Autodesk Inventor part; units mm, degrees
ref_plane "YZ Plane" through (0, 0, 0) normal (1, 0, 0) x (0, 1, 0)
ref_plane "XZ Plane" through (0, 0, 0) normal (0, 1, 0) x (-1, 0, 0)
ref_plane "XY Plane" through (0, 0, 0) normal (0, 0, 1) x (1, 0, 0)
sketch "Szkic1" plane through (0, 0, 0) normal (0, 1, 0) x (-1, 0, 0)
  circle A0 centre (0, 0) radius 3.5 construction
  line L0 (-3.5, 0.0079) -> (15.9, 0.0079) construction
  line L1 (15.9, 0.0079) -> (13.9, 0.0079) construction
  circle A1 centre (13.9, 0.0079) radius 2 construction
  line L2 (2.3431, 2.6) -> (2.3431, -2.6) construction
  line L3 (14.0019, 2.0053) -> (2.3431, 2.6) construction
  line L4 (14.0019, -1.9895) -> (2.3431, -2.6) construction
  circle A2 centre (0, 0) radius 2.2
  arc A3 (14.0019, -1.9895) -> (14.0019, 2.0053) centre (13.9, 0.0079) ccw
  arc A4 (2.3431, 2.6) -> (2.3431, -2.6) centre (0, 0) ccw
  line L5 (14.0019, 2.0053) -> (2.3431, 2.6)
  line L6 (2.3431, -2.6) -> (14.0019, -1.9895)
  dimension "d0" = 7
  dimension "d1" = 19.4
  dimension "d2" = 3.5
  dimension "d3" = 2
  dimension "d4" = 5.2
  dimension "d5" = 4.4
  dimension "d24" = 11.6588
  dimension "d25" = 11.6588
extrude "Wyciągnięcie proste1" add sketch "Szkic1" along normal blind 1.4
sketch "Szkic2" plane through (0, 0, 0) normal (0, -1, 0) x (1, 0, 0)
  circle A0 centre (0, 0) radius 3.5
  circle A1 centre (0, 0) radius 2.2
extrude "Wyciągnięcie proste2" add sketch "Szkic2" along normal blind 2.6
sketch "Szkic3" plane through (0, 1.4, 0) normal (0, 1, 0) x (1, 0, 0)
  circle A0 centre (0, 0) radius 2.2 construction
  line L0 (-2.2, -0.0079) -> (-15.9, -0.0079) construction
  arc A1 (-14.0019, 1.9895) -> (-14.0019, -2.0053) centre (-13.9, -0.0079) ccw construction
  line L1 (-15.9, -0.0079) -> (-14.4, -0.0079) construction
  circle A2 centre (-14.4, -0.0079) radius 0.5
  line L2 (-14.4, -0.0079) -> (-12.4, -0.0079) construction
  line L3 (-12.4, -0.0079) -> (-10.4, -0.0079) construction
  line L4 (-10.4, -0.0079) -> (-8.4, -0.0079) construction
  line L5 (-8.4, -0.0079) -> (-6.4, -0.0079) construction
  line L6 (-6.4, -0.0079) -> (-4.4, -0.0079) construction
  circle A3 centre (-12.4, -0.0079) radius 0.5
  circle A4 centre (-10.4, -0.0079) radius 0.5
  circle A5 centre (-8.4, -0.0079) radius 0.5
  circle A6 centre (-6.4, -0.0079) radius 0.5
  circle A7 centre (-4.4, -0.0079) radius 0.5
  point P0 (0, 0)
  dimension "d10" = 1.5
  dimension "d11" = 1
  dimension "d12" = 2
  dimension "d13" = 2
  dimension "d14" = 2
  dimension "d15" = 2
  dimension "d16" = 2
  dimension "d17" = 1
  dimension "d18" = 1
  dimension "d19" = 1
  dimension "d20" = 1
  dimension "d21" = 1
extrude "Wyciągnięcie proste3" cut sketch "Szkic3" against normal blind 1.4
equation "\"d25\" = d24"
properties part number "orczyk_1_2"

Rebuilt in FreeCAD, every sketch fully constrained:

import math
import FreeCAD as App
import Part
import Sketcher
Q = App.Units.Quantity

doc = App.newDocument("Part")
body = doc.addObject("PartDesign::Body", "Body")

sketch1 = body.newObject("Sketcher::SketchObject", "Sketch")
sketch1.AttachmentSupport = (doc.getObject("XZ_Plane"), [""])
sketch1.MapMode = "FlatFace"
sketch1.addGeometry([
    Part.LineSegment(App.Vector(-2.3, -2.6, 0), App.Vector(-14, -2, 0)),
    Part.ArcOfCircle(Part.Circle(App.Vector(-13.9, 0, 0), App.Vector(0, 0, 1), 2), math.radians(93), math.radians(267)),
    Part.LineSegment(App.Vector(-14, 2, 0), App.Vector(-2.3, 2.6, 0)),
    Part.ArcOfCircle(Part.Circle(App.Vector(0, 0, 0), App.Vector(0, 0, 1), 3.5), math.radians(-132), math.radians(132)),
    Part.Circle(App.Vector(0, 0, 0), App.Vector(0, 0, 1), 2.2),
], False)
sketch1.addConstraint([
    Sketcher.Constraint("Coincident", 0, 2, 1, 2),
    Sketcher.Constraint("Tangent", 1, 1, 2, 1),
    Sketcher.Constraint("Coincident", 2, 2, 3, 2),
    Sketcher.Constraint("Coincident", 3, 1, 0, 1),
    Sketcher.Constraint("Coincident", 3, 3, -1, 1),
    Sketcher.Constraint("Coincident", 4, 3, -1, 1),
    Sketcher.Constraint("Vertical", 0, 2, 1, 1),
    Sketcher.Constraint("Vertical", 2, 2, 3, 1),
    Sketcher.Constraint("Radius", 1, 2.0),
    Sketcher.Constraint("Diameter", 4, 4.4),
    Sketcher.Constraint("Radius", 3, 3.5),
    Sketcher.Constraint("DistanceY", 3, 1, 2, 2, 5.2),
    Sketcher.Constraint("DistanceX", 1, 3, -1, 1, 13.9),
    Sketcher.Constraint("Angle", 2, Q("2.92 deg")),
])
pad1 = body.newObject("PartDesign::Pad", "Pad")
pad1.Profile = sketch1
pad1.Length = 1.4
pad1.Reversed = True

sketch2 = body.newObject("Sketcher::SketchObject", "Sketch001")
sketch2.AttachmentSupport = (doc.getObject("XZ_Plane"), [""])
sketch2.MapMode = "FlatFace"
sketch2.addGeometry([
    Part.Circle(App.Vector(0, 0, 0), App.Vector(0, 0, 1), 3.5),
    Part.Circle(App.Vector(0, 0, 0), App.Vector(0, 0, 1), 2.2),
], False)
sketch2.addConstraint([
    Sketcher.Constraint("Coincident", 0, 3, -1, 1),
    Sketcher.Constraint("Coincident", 1, 3, -1, 1),
    Sketcher.Constraint("Diameter", 0, 7.0),
    Sketcher.Constraint("Diameter", 1, 4.4),
])
pad2 = body.newObject("PartDesign::Pad", "Pad001")
pad2.Profile = sketch2
pad2.Length = 2.6

sketch3 = body.newObject("Sketcher::SketchObject", "Sketch002")
sketch3.AttachmentSupport = (doc.getObject("XZ_Plane"), [""])
sketch3.MapMode = "FlatFace"
sketch3.AttachmentOffset = App.Placement(App.Vector(0, 0, -1.4), App.Rotation())
sketch3.addGeometry([
    Part.Circle(App.Vector(-14.4, 0, 0), App.Vector(0, 0, 1), 0.5),
    Part.Circle(App.Vector(-12.4, 0, 0), App.Vector(0, 0, 1), 0.5),
    Part.Circle(App.Vector(-10.4, 0, 0), App.Vector(0, 0, 1), 0.5),
    Part.Circle(App.Vector(-8.4, 0, 0), App.Vector(0, 0, 1), 0.5),
    Part.Circle(App.Vector(-6.4, 0, 0), App.Vector(0, 0, 1), 0.5),
    Part.Circle(App.Vector(-4.4, 0, 0), App.Vector(0, 0, 1), 0.5),
], False)
sketch3.addConstraint([
    Sketcher.Constraint("Equal", 0, 1),
    Sketcher.Constraint("Equal", 1, 2),
    Sketcher.Constraint("Equal", 2, 3),
    Sketcher.Constraint("Equal", 3, 4),
    Sketcher.Constraint("Equal", 4, 5),
    Sketcher.Constraint("Horizontal", 0, 3, 1, 3),
    Sketcher.Constraint("Horizontal", 1, 3, 2, 3),
    Sketcher.Constraint("Horizontal", 2, 3, 3, 3),
    Sketcher.Constraint("Horizontal", 3, 3, 4, 3),
    Sketcher.Constraint("Horizontal", 4, 3, 5, 3),
    Sketcher.Constraint("Diameter", 0, 1.0),
    Sketcher.Constraint("DistanceX", 0, 3, 1, 3, 2.0),
    Sketcher.Constraint("DistanceX", 1, 3, 2, 3, 2.0),
    Sketcher.Constraint("DistanceX", 2, 3, 3, 3, 2.0),
    Sketcher.Constraint("DistanceX", 3, 3, 4, 3, 2.0),
    Sketcher.Constraint("DistanceX", 4, 3, 5, 3, 2.0),
    Sketcher.Constraint("DistanceX", 0, 3, -1, 1, 14.4),
    Sketcher.Constraint("DistanceY", -1, 1, 0, 3, 0.008),
])
pocket1 = body.newObject("PartDesign::Pocket", "Pocket")
pocket1.Profile = sketch3
pocket1.Length = 1.4
pocket1.Reversed = True

doc.recompute()
